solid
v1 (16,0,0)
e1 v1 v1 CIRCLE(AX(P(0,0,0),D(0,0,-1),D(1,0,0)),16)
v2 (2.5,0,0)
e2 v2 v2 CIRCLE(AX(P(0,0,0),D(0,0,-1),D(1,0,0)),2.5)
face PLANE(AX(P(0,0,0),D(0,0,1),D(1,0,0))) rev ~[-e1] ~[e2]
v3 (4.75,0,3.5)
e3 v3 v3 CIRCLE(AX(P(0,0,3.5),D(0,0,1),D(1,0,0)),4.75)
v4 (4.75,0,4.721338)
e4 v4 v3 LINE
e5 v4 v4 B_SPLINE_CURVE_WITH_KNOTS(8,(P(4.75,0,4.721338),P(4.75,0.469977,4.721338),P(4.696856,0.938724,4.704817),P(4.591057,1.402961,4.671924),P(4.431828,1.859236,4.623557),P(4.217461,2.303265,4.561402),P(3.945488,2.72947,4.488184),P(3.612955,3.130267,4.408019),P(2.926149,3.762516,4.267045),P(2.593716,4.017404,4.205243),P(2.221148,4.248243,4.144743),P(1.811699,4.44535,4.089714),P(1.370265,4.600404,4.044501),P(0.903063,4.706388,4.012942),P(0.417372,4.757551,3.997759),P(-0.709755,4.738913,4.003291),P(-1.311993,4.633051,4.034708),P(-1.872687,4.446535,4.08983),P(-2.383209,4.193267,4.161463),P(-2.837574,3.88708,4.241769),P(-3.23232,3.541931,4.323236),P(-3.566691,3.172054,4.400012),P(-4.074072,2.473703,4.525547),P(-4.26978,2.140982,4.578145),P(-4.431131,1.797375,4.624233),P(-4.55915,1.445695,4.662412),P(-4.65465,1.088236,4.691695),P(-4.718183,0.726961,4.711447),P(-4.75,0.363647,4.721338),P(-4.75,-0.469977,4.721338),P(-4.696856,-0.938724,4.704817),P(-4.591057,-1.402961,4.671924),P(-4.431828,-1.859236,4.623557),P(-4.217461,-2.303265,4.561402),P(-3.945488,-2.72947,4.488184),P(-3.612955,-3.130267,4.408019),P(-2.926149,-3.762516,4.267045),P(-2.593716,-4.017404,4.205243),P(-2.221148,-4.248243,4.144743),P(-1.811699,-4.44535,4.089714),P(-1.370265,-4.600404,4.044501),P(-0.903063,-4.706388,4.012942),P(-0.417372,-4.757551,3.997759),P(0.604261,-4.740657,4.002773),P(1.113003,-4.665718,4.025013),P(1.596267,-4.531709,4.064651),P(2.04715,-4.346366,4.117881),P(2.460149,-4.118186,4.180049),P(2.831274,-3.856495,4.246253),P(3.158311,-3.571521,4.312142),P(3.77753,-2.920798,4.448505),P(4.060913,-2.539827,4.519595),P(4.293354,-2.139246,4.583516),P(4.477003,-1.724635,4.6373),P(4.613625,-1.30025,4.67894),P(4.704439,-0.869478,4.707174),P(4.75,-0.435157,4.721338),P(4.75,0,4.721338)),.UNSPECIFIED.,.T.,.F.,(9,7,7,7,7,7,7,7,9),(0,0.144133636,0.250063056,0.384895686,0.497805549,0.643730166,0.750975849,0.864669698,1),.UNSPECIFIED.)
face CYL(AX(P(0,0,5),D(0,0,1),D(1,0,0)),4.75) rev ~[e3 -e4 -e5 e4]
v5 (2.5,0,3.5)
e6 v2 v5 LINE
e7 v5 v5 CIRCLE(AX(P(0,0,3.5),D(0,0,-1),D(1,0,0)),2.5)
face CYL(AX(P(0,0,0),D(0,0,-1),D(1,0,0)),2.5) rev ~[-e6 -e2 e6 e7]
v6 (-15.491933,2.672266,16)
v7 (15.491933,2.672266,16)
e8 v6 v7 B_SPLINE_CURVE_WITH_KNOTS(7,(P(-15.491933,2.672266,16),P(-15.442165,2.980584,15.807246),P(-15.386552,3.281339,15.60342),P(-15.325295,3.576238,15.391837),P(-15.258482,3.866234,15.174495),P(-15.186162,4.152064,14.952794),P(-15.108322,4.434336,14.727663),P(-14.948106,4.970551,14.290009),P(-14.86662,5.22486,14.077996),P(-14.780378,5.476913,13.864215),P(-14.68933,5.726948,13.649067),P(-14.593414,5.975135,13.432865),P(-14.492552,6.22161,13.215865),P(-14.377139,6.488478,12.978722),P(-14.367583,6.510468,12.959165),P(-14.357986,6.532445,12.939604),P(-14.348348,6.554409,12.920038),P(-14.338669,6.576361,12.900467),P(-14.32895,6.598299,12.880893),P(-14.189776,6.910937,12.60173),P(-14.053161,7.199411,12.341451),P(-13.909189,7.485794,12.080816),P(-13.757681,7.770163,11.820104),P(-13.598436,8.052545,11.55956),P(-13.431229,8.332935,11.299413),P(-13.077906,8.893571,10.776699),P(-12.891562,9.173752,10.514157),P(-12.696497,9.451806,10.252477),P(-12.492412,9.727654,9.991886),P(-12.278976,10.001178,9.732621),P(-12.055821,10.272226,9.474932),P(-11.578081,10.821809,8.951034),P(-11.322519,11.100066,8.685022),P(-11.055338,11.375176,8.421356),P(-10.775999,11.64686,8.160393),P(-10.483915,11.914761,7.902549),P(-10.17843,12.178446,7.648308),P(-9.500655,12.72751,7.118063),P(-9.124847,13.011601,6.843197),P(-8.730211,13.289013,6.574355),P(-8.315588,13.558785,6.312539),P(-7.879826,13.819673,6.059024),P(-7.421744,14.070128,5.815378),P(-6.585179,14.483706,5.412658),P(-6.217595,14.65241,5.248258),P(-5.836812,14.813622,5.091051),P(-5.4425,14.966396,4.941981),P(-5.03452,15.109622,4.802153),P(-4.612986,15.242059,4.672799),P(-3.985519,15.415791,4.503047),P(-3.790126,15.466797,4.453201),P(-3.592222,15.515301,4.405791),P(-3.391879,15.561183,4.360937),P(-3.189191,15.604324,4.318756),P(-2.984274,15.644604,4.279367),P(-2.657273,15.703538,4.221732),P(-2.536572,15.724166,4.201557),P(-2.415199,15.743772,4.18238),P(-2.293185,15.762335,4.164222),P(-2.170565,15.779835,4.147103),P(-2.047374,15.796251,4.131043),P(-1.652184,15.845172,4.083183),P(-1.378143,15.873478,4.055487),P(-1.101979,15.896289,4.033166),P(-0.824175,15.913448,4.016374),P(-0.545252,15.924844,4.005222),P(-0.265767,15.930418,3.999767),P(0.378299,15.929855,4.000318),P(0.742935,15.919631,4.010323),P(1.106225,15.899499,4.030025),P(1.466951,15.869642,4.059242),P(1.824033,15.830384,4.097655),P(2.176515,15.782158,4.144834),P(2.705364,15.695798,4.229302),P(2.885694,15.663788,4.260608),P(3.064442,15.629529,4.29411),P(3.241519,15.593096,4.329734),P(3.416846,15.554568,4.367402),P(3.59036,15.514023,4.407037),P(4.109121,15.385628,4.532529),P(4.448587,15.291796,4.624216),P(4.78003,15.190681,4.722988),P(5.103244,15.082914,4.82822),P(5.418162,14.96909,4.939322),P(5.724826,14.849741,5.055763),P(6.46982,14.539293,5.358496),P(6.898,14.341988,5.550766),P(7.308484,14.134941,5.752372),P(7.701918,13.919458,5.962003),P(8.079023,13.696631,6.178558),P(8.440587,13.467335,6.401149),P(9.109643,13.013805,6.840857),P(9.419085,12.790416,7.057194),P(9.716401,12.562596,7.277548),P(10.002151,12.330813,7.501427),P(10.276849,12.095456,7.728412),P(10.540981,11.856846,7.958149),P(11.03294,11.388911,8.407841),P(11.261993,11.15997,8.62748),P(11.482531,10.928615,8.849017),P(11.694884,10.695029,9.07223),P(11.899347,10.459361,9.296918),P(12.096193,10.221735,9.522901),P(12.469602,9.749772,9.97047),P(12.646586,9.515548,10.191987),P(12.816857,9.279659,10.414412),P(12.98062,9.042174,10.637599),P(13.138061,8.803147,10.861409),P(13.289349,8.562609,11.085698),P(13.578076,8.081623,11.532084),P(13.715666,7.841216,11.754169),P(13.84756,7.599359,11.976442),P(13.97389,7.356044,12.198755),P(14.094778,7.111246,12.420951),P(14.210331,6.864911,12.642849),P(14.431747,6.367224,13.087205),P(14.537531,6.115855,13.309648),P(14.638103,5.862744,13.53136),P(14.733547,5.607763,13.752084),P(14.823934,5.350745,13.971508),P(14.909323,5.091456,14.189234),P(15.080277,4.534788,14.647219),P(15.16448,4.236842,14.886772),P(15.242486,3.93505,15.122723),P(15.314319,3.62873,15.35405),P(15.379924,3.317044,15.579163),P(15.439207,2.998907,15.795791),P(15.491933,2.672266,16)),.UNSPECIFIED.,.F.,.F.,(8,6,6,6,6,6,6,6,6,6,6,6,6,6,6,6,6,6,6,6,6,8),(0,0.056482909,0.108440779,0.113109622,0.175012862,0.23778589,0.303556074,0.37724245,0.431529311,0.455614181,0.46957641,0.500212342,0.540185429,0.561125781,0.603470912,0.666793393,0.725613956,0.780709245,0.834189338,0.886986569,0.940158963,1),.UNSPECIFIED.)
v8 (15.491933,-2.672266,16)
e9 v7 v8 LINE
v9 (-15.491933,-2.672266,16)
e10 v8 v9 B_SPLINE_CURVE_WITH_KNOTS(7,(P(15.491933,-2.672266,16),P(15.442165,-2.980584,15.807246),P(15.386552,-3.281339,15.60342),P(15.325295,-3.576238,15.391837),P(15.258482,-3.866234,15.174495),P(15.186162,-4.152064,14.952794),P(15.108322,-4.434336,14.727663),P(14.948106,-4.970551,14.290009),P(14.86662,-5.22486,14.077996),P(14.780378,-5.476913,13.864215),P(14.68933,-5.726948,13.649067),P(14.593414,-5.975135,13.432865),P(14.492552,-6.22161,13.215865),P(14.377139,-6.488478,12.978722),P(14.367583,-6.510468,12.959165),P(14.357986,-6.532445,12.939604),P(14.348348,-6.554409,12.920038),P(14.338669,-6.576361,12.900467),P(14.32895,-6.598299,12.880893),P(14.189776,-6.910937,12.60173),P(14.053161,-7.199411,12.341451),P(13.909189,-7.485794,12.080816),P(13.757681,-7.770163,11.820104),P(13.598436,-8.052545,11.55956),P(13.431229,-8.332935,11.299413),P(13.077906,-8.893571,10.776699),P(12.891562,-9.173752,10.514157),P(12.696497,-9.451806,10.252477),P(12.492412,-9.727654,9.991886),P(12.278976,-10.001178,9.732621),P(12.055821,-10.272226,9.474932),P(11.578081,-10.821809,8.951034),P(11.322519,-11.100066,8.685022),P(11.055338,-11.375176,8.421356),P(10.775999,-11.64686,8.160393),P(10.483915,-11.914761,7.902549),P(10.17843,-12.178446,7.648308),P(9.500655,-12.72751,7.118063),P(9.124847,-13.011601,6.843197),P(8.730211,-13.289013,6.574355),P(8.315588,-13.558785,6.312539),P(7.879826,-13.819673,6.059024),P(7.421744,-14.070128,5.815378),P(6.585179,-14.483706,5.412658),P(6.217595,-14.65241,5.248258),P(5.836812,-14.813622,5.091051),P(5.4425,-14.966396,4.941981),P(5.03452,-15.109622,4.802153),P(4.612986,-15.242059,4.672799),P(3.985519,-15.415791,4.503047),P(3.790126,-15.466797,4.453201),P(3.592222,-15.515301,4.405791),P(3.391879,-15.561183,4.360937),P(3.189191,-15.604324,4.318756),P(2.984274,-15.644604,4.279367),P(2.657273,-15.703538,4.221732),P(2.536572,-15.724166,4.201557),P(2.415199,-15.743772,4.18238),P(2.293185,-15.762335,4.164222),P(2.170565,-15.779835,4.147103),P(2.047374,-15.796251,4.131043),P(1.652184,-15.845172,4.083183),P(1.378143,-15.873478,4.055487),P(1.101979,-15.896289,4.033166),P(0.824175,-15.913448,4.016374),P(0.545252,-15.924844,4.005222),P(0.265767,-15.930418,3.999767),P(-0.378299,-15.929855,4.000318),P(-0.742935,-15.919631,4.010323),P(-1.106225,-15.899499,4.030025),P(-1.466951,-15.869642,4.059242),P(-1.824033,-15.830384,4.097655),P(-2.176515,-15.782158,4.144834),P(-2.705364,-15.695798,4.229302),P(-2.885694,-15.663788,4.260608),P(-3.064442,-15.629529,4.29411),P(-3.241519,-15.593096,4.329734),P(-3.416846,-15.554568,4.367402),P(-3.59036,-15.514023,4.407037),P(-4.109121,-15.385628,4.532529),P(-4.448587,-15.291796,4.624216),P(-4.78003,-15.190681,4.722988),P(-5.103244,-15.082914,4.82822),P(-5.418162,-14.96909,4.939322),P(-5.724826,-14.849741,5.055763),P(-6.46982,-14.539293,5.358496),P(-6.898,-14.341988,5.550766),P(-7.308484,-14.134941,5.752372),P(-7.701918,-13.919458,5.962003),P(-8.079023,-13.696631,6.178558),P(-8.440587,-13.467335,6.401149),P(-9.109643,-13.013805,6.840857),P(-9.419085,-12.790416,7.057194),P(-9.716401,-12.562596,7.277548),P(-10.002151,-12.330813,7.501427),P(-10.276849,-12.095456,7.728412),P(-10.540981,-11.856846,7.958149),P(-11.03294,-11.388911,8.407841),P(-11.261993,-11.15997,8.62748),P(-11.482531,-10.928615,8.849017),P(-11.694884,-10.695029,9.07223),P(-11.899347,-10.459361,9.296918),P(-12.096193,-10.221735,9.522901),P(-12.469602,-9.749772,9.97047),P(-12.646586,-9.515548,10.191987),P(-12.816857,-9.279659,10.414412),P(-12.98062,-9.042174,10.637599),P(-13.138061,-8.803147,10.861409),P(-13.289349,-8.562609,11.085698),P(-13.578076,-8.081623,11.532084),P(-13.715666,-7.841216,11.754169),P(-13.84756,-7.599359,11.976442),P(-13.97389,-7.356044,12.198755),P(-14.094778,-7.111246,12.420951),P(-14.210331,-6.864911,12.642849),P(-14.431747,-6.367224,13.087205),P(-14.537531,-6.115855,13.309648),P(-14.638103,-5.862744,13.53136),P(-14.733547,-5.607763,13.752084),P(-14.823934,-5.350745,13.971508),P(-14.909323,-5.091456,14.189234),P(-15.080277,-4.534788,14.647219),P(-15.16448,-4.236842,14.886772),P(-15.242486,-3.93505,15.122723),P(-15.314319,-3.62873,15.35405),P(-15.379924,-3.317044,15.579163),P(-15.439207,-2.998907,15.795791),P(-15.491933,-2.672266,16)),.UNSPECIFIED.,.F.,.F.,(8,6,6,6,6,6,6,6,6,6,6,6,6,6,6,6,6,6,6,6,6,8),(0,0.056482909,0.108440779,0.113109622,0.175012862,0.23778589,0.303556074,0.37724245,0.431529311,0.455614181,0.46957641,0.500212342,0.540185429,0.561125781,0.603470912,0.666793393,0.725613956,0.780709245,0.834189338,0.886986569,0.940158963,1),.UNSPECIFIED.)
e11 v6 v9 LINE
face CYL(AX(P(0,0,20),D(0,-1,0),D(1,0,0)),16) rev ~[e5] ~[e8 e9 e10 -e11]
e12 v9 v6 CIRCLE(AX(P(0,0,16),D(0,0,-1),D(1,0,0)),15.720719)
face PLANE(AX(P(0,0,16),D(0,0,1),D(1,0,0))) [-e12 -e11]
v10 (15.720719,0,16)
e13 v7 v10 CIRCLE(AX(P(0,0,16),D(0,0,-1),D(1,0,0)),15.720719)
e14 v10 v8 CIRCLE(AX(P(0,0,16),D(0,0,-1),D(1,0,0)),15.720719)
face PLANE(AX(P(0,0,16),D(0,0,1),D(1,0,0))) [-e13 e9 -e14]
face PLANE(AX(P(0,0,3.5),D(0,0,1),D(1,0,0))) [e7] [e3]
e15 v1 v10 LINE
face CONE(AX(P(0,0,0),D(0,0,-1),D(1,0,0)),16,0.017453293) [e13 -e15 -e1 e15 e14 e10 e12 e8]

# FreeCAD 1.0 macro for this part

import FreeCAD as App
import Part
import Sketcher

V = App.Vector
Q = App.Units.Quantity

doc = App.newDocument("Part")
body = doc.addObject("PartDesign::Body", "Body")

sketch1 = body.newObject("Sketcher::SketchObject", "Sketch")
sketch1.AttachmentSupport = (doc.getObject("XY_Plane"), [""])
sketch1.MapMode = "FlatFace"
sketch1.addGeometry(Part.Circle(V(0, 0, 0), V(0, 0, 1), 16), False)
sketch1.addConstraint([
    Sketcher.Constraint("Coincident", 0, 3, -1, 1),
    Sketcher.Constraint("Diameter", 0, Q("32 mm")),
])
pad1 = body.newObject("PartDesign::Pad", "Pad")
pad1.Profile = sketch1
pad1.Length = 16
pad1.TaperAngle = -1

sketch2 = body.newObject("Sketcher::SketchObject", "Sketch001")
sketch2.AttachmentSupport = (doc.getObject("XZ_Plane"), [""])
sketch2.MapMode = "FlatFace"
sketch2.addGeometry(Part.Circle(V(0, 20, 0), V(0, 0, 1), 16), False)
sketch2.addConstraint([
    Sketcher.Constraint("PointOnObject", 0, 3, -2),
    Sketcher.Constraint("Diameter", 0, Q("32 mm")),
    Sketcher.Constraint("DistanceY", -1, 1, 0, 3, Q("20 mm")),
])
pocket1 = body.newObject("PartDesign::Pocket", "Pocket")
pocket1.Profile = sketch2
pocket1.Length = 32
pocket1.Midplane = True

sketch3 = body.newObject("Sketcher::SketchObject", "Sketch002")
sketch3.AttachmentSupport = (doc.getObject("XY_Plane"), [""])
sketch3.MapMode = "FlatFace"
sketch3.addGeometry(Part.Circle(V(0, 0, 0), V(0, 0, 1), 2.5), False)
sketch3.addConstraint([
    Sketcher.Constraint("Coincident", 0, 3, -1, 1),
    Sketcher.Constraint("Diameter", 0, Q("5 mm")),
])
pocket2 = body.newObject("PartDesign::Pocket", "Pocket001")
pocket2.Profile = sketch3
pocket2.Length = 5
pocket2.Reversed = True

sketch4 = body.newObject("Sketcher::SketchObject", "Sketch003")
sketch4.AttachmentSupport = (doc.getObject("XY_Plane"), [""])
sketch4.MapMode = "FlatFace"
sketch4.AttachmentOffset = App.Placement(V(0, 0, 5), App.Rotation())
sketch4.addGeometry(Part.Circle(V(0, 0, 0), V(0, 0, 1), 4.8), False)
sketch4.addConstraint([
    Sketcher.Constraint("Coincident", 0, 3, -1, 1),
    Sketcher.Constraint("Diameter", 0, Q("9.5 mm")),
])
pocket3 = body.newObject("PartDesign::Pocket", "Pocket002")
pocket3.Profile = sketch4
pocket3.Length = 1.5

doc.recompute()
